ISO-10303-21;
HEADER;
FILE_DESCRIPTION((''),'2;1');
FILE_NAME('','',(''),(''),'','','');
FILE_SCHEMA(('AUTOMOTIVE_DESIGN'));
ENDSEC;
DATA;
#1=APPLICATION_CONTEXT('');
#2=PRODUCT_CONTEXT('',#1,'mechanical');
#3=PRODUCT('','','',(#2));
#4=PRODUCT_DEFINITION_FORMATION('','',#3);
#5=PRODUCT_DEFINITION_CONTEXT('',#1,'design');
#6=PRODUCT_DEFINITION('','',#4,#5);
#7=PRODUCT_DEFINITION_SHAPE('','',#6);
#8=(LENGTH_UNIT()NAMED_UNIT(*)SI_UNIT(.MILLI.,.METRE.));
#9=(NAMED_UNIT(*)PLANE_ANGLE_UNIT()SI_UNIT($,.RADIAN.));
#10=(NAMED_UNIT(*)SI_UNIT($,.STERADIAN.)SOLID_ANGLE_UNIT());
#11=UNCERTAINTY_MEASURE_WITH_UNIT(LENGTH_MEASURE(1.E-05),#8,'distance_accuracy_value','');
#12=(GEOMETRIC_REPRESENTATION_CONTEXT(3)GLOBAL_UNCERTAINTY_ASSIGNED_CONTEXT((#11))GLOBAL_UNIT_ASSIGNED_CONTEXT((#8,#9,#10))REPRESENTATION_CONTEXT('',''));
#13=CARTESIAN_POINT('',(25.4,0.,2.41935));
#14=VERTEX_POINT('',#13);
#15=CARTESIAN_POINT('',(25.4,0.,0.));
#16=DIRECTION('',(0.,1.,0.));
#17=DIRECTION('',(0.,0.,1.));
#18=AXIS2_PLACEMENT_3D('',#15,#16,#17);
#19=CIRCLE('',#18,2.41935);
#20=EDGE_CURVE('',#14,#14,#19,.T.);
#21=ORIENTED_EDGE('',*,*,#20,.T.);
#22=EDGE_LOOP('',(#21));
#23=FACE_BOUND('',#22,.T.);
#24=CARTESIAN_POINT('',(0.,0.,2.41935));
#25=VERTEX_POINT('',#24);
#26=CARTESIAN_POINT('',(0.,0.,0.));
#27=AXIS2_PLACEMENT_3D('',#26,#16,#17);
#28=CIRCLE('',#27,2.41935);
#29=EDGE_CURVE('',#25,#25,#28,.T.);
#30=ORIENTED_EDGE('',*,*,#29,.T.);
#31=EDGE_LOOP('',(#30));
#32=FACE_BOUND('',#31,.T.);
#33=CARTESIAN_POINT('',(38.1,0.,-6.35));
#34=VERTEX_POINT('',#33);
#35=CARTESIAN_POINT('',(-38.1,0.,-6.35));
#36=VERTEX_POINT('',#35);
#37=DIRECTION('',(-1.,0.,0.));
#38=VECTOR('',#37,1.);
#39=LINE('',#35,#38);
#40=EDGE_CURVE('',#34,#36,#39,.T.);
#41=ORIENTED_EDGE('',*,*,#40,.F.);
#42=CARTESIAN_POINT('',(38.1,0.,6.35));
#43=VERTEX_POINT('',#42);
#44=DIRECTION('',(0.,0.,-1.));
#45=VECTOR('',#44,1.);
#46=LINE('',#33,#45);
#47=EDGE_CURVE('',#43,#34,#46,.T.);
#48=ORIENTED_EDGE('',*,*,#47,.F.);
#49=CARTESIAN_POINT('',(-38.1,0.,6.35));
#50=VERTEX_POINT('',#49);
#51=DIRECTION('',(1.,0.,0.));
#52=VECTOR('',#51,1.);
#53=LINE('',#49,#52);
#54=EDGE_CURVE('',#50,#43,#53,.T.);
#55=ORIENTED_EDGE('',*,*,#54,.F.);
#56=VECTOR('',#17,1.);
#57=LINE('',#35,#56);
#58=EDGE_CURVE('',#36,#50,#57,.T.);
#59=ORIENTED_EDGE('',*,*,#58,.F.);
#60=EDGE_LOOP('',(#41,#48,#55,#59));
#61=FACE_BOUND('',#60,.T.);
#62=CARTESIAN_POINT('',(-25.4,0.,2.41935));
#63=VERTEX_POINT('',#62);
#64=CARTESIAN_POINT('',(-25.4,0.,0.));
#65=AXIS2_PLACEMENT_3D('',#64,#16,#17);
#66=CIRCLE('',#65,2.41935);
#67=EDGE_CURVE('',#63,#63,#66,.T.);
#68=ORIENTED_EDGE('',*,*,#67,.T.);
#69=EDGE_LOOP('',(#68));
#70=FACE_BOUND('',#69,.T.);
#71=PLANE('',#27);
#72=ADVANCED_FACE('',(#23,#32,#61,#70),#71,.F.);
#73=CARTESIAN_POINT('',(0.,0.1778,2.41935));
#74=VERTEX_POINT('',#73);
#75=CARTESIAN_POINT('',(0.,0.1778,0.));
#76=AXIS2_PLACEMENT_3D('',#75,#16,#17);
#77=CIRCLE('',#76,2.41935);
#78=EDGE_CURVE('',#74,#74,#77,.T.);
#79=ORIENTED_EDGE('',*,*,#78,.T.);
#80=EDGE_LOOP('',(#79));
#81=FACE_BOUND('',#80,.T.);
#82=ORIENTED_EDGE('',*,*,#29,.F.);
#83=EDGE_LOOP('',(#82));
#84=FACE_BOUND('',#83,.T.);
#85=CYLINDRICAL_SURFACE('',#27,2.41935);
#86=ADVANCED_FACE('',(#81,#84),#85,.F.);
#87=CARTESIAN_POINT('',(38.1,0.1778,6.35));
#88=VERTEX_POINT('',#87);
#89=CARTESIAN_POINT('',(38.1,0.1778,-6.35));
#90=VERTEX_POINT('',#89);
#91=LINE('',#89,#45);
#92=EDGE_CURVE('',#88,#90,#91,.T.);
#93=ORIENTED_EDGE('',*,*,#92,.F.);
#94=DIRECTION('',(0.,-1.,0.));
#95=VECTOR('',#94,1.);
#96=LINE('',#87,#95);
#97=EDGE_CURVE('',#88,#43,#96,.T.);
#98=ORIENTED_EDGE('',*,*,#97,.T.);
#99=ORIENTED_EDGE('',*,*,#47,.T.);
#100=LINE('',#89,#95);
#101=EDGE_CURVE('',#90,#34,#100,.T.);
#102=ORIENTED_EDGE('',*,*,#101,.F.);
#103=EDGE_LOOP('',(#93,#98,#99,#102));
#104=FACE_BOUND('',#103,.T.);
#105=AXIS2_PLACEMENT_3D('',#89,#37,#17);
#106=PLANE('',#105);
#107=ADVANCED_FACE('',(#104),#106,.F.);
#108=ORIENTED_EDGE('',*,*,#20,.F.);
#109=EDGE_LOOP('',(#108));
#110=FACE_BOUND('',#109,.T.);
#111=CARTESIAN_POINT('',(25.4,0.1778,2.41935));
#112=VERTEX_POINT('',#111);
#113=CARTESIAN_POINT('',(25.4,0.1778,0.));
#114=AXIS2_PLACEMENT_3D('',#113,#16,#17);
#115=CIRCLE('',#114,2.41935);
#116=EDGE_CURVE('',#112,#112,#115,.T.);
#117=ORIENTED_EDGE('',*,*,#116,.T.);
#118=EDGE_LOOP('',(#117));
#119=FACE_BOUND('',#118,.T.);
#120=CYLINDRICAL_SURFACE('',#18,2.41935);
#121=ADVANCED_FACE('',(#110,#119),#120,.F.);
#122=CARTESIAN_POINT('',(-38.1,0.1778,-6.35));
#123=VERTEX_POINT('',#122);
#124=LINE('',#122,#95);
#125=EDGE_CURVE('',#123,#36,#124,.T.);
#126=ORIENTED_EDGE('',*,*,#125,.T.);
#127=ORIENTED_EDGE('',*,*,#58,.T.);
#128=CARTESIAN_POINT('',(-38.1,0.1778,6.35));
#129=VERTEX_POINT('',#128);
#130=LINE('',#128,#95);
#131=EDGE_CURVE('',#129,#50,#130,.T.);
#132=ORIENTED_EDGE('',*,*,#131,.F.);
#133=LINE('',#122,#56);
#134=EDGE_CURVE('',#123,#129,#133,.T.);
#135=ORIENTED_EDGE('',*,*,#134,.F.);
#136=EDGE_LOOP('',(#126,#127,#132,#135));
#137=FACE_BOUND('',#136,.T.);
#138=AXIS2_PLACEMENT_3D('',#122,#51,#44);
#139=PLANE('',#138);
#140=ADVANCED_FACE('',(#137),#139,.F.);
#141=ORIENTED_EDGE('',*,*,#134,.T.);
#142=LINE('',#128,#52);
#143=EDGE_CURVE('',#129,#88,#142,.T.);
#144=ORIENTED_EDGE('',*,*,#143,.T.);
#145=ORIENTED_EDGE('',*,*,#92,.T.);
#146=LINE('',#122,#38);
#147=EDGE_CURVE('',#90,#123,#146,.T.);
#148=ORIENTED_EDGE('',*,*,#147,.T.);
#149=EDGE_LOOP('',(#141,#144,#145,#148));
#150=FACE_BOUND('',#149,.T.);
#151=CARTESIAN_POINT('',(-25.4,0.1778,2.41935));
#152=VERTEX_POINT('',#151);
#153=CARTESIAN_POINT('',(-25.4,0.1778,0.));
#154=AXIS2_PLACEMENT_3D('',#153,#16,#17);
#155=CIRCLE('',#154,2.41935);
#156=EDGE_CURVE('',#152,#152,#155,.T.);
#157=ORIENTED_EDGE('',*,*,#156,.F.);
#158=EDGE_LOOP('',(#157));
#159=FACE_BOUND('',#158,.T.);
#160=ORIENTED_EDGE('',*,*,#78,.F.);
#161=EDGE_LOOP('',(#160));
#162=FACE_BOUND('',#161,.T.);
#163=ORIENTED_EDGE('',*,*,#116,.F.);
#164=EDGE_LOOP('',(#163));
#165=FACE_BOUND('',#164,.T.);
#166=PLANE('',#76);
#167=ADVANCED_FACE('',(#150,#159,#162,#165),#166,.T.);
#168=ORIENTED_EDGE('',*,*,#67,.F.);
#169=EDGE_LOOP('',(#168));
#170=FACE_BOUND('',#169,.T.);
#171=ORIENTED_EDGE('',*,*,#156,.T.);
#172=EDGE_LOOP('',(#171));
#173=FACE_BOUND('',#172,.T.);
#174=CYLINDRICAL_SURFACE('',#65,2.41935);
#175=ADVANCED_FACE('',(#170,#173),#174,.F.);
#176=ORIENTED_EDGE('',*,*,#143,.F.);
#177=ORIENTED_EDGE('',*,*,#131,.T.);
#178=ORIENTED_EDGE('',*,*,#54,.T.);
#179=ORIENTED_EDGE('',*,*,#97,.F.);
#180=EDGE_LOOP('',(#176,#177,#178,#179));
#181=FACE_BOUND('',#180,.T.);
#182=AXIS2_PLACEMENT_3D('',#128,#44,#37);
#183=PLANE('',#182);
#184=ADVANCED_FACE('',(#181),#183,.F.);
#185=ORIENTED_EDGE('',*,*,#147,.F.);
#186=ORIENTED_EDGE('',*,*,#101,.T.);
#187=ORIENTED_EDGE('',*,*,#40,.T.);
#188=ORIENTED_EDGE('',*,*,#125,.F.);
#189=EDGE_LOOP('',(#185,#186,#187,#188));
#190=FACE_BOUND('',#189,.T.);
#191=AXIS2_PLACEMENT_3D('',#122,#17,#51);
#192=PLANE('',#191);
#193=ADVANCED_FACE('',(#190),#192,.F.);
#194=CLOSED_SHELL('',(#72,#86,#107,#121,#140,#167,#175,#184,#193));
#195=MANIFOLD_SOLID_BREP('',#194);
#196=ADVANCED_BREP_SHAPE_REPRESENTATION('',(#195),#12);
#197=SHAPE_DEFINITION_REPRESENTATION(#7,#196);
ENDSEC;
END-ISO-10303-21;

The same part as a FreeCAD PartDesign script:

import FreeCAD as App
import Part
import Sketcher

V = App.Vector
Q = App.Units.Quantity


def add_polygon(sketch, points):
    """Adds a closed chain of lines whose ends are joined by coincident constraints."""
    first, n = sketch.GeometryCount, len(points)
    for a, b in zip(points, points[1:] + points[:1]):
        sketch.addGeometry(Part.LineSegment(App.Vector(*a, 0), App.Vector(*b, 0)), False)
    for i in range(n):
        sketch.addConstraint(Sketcher.Constraint("Coincident", first + i, 2, first + (i + 1) % n, 1))

doc = App.newDocument("Part")
body = doc.addObject("PartDesign::Body", "Body")

sketch1 = body.newObject("Sketcher::SketchObject", "Sketch")
sketch1.AttachmentSupport = (doc.getObject("XZ_Plane"), [""])
sketch1.MapMode = "FlatFace"
add_polygon(sketch1, [(-38, -6), (-38, 6), (38, 6), (38, -6)])
sketch1.addConstraint(Sketcher.Constraint("Vertical", 0))
sketch1.addConstraint(Sketcher.Constraint("Horizontal", 1))
sketch1.addConstraint(Sketcher.Constraint("Vertical", 2))
sketch1.addConstraint(Sketcher.Constraint("Horizontal", 3))
sketch1.addConstraint(Sketcher.Constraint("Symmetric", 0, 2, 2, 2, -1, 1))
sketch1.addConstraint(Sketcher.Constraint("DistanceX", 1, 1, 1, 2, Q("3 in")))
sketch1.addConstraint(Sketcher.Constraint("DistanceY", 0, 1, 0, 2, Q("0.5 in")))
pad1 = body.newObject("PartDesign::Pad", "Pad")
pad1.Profile = sketch1
pad1.Length = Q("0.007 in")
pad1.Reversed = True

sketch2 = body.newObject("Sketcher::SketchObject", "Sketch001")
sketch2.AttachmentSupport = (doc.getObject("XZ_Plane"), [""])
sketch2.MapMode = "FlatFace"
sketch2.AttachmentOffset = App.Placement(V(0, 0, -0.007 * 25.4), App.Rotation())
sketch2.addGeometry(Part.Circle(V(0, 0, 0), V(0, 0, 1), 2.4), False)
sketch2.addGeometry(Part.Circle(V(-25.4, 0, 0), V(0, 0, 1), 2.4), False)
sketch2.addGeometry(Part.Circle(V(25.4, 0, 0), V(0, 0, 1), 2.4), False)
sketch2.addConstraint(Sketcher.Constraint("Coincident", 0, 3, -1, 1))
sketch2.addConstraint(Sketcher.Constraint("Equal", 0, 1))
sketch2.addConstraint(Sketcher.Constraint("Equal", 1, 2))
sketch2.addConstraint(Sketcher.Constraint("Symmetric", 1, 3, 2, 3, -1, 1))
sketch2.addConstraint(Sketcher.Constraint("PointOnObject", 1, 3, -1))
sketch2.addConstraint(Sketcher.Constraint("DistanceX", 1, 3, -1, 1, Q("1 in")))
sketch2.addConstraint(Sketcher.Constraint("Diameter", 0, Q("0.1905 in")))
pocket1 = body.newObject("PartDesign::Pocket", "Pocket")
pocket1.Profile = sketch2
pocket1.Type = "ThroughAll"
pocket1.Reversed = True

doc.recompute()
